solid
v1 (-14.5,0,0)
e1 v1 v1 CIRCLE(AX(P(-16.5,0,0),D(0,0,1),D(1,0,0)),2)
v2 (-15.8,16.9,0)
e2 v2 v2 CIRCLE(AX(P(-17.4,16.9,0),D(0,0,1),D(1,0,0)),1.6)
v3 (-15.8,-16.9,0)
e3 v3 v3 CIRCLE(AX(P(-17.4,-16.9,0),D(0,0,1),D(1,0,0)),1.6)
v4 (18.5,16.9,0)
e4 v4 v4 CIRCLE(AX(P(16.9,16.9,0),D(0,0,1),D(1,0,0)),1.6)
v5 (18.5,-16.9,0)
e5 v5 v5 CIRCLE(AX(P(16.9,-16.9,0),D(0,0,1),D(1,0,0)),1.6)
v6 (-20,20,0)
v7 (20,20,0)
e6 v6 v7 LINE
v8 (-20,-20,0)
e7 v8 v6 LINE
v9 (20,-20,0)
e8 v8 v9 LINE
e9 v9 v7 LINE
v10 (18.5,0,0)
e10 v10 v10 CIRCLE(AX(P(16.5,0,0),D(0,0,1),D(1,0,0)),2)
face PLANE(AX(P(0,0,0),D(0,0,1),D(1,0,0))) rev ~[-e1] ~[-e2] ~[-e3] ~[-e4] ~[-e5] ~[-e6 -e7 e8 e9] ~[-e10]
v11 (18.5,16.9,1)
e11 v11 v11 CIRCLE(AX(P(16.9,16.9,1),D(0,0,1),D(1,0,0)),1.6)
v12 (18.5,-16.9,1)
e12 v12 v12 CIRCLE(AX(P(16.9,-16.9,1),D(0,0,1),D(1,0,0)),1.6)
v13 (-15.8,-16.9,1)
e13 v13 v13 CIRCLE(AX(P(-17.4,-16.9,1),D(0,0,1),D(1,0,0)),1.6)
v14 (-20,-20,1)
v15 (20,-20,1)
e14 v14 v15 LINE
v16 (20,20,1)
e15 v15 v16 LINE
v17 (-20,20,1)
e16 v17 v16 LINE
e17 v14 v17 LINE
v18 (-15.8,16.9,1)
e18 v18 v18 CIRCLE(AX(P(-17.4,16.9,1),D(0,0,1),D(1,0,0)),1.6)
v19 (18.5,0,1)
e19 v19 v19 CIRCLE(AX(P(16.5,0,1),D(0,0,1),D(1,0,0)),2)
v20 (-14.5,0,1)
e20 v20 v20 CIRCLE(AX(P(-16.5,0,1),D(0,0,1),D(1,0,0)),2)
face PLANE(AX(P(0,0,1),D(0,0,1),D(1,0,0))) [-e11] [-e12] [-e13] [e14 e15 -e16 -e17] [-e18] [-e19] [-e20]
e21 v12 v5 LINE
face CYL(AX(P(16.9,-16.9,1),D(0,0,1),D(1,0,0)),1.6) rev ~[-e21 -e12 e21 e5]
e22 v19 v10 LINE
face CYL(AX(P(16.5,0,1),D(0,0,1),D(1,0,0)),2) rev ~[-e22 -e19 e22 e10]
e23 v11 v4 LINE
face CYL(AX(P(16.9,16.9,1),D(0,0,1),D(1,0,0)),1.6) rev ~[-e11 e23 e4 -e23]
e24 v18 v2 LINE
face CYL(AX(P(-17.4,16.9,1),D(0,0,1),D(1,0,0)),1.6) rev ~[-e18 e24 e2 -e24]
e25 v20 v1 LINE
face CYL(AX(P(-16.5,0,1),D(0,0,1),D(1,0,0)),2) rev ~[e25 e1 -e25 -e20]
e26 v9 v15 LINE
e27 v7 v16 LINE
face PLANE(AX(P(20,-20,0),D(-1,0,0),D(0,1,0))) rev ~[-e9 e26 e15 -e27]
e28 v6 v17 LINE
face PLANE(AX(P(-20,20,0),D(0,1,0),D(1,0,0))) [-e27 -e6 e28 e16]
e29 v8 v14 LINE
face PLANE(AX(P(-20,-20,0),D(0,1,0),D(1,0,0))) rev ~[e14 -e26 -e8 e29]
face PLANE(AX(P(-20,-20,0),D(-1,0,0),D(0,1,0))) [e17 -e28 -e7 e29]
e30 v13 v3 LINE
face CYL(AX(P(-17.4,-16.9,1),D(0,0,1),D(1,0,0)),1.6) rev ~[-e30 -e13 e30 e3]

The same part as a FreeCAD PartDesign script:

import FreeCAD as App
import Part
import Sketcher

V = App.Vector
Q = App.Units.Quantity

doc = App.newDocument("Part")
body = doc.addObject("PartDesign::Body", "Body")

sketch1 = body.newObject("Sketcher::SketchObject", "Sketch")
sketch1.AttachmentSupport = (doc.getObject("XY_Plane"), [""])
sketch1.MapMode = "FlatFace"
sketch1.addGeometry([
    Part.LineSegment(V(-20, 20, 0), V(-20, -20, 0)),
    Part.LineSegment(V(-20, -20, 0), V(20, -20, 0)),
    Part.LineSegment(V(20, -20, 0), V(20, 20, 0)),
    Part.LineSegment(V(20, 20, 0), V(-20, 20, 0)),
], False)
sketch1.addConstraint([
    Sketcher.Constraint("Coincident", 0, 2, 1, 1),
    Sketcher.Constraint("Coincident", 1, 2, 2, 1),
    Sketcher.Constraint("Coincident", 2, 2, 3, 1),
    Sketcher.Constraint("Coincident", 3, 2, 0, 1),
    Sketcher.Constraint("Vertical", 0),
    Sketcher.Constraint("Horizontal", 1),
    Sketcher.Constraint("Vertical", 2),
    Sketcher.Constraint("Horizontal", 3),
    Sketcher.Constraint("Symmetric", 0, 2, 2, 2, -1, 1),
    Sketcher.Constraint("Equal", 3, 0),
    Sketcher.Constraint("DistanceX", 1, 1, 1, 2, Q("40 mm")),
])
pad1 = body.newObject("PartDesign::Pad", "Pad")
pad1.Profile = sketch1
pad1.Length = 1

sketch2 = body.newObject("Sketcher::SketchObject", "Sketch001")
sketch2.AttachmentSupport = (doc.getObject("XY_Plane"), [""])
sketch2.MapMode = "FlatFace"
sketch2.AttachmentOffset = App.Placement(V(0, 0, 1), App.Rotation())
sketch2.addGeometry([
    Part.Circle(V(-17.4, -16.9, 0), V(0, 0, 1), 1.6),
    Part.Circle(V(16.9, -16.9, 0), V(0, 0, 1), 1.6),
    Part.Circle(V(16.9, 16.9, 0), V(0, 0, 1), 1.6),
    Part.Circle(V(-17.4, 16.9, 0), V(0, 0, 1), 1.6),
    Part.Circle(V(16.5, 0, 0), V(0, 0, 1), 2),
    Part.Circle(V(-16.5, 0, 0), V(0, 0, 1), 2),
], False)
sketch2.addConstraint([
    Sketcher.Constraint("Equal", 0, 1),
    Sketcher.Constraint("Equal", 1, 2),
    Sketcher.Constraint("Equal", 2, 3),
    Sketcher.Constraint("Equal", 4, 5),
    Sketcher.Constraint("Symmetric", 4, 3, 5, 3, -1, 1),
    Sketcher.Constraint("Symmetric", 1, 3, 2, 3, -1),
    Sketcher.Constraint("Symmetric", 0, 3, 3, 3, -1),
    Sketcher.Constraint("PointOnObject", 4, 3, -1),
    Sketcher.Constraint("Horizontal", 0, 3, 1, 3),
    Sketcher.Constraint("Diameter", 4, Q("4 mm")),
    Sketcher.Constraint("Diameter", 0, Q("3.2 mm")),
    Sketcher.Constraint("DistanceX", 5, 3, 4, 3, Q("33 mm")),
    Sketcher.Constraint("DistanceX", 0, 3, -1, 1, Q("17.4 mm")),
    Sketcher.Constraint("DistanceY", 0, 3, -1, 1, Q("16.9 mm")),
    Sketcher.Constraint("DistanceX", -1, 1, 1, 3, Q("16.9 mm")),
])
pocket1 = body.newObject("PartDesign::Pocket", "Pocket")
pocket1.Profile = sketch2
pocket1.Length = 10

doc.recompute()
